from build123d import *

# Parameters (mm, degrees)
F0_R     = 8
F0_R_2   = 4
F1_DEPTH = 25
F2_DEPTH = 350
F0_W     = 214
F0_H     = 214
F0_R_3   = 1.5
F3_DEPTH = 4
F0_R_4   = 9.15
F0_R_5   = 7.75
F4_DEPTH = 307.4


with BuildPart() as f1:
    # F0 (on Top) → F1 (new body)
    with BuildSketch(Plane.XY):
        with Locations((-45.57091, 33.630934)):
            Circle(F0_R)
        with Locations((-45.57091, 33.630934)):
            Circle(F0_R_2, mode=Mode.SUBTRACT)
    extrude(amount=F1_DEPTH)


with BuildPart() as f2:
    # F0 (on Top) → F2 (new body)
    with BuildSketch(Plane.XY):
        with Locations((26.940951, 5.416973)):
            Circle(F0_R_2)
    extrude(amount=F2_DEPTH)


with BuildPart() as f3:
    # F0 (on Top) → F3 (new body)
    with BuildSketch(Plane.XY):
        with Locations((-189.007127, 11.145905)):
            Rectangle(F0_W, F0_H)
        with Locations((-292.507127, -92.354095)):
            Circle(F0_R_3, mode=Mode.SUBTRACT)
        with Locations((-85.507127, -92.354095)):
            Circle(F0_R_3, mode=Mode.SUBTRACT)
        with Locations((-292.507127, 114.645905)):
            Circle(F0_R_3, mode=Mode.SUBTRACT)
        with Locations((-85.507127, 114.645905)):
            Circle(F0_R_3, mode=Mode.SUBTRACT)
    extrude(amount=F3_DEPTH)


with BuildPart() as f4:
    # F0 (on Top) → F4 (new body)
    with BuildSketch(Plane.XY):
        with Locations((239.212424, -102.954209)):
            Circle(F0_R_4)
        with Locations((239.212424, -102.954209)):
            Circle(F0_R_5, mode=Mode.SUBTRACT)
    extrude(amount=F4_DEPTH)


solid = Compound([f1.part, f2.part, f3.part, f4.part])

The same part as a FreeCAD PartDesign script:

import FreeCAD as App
import Part
import Sketcher
from FreeCAD import Vector
Q = App.Units.Quantity

doc = App.newDocument("Part")
body = doc.addObject("PartDesign::Body", "Body")

sketch1 = doc.addObject("Sketcher::SketchObject", "Sketch")
body.addObject(sketch1)
sketch1.AttachmentSupport = (doc.XY_Plane, [""])
sketch1.MapMode = "FlatFace"
sketch1.addGeometry([
    Part.Circle(Vector(-45.6, 33.6, 0), Vector(0, 0, 1), 8),
    Part.Circle(Vector(-45.6, 33.6, 0), Vector(0, 0, 1), 4),
], False)
sketch1.addConstraint([
    Sketcher.Constraint("Coincident", 1, 3, 0, 3),
    Sketcher.Constraint("Diameter", 0, Q("16 mm")),
    Sketcher.Constraint("Diameter", 1, Q("8 mm")),
    Sketcher.Constraint("DistanceX", 0, 3, -1, 1, Q("45.57091 mm")),
    Sketcher.Constraint("DistanceY", -1, 1, 0, 3, Q("33.630934 mm")),
])
pad1 = doc.addObject("PartDesign::Pad", "Pad")
body.addObject(pad1)
pad1.Profile = sketch1
pad1.Length = 25
body2 = doc.addObject("PartDesign::Body", "Body001")

sketch2 = doc.addObject("Sketcher::SketchObject", "Sketch001")
body2.addObject(sketch2)
sketch2.AttachmentSupport = (doc.getObject("XY_Plane001"), [""])
sketch2.MapMode = "FlatFace"
sketch2.addGeometry(Part.Circle(Vector(26.9, 5.4, 0), Vector(0, 0, 1), 4), False)
sketch2.addConstraint([
    Sketcher.Constraint("Diameter", 0, Q("8 mm")),
    Sketcher.Constraint("DistanceX", -1, 1, 0, 3, Q("26.940951 mm")),
    Sketcher.Constraint("DistanceY", -1, 1, 0, 3, Q("5.416973 mm")),
])
pad2 = doc.addObject("PartDesign::Pad", "Pad001")
body2.addObject(pad2)
pad2.Profile = sketch2
pad2.Length = 350
body3 = doc.addObject("PartDesign::Body", "Body002")

sketch3 = doc.addObject("Sketcher::SketchObject", "Sketch002")
body3.addObject(sketch3)
sketch3.AttachmentSupport = (doc.getObject("XY_Plane002"), [""])
sketch3.MapMode = "FlatFace"
sketch3.addGeometry([
    Part.LineSegment(Vector(-296, 118.1, 0), Vector(-296, -95.9, 0)),
    Part.LineSegment(Vector(-296, -95.9, 0), Vector(-82, -95.9, 0)),
    Part.LineSegment(Vector(-82, -95.9, 0), Vector(-82, 118.1, 0)),
    Part.LineSegment(Vector(-82, 118.1, 0), Vector(-296, 118.1, 0)),
    Part.Circle(Vector(-292.5, -92.4, 0), Vector(0, 0, 1), 1.5),
    Part.Circle(Vector(-85.5, -92.4, 0), Vector(0, 0, 1), 1.5),
    Part.Circle(Vector(-292.5, 114.6, 0), Vector(0, 0, 1), 1.5),
    Part.Circle(Vector(-85.5, 114.6, 0), Vector(0, 0, 1), 1.5),
], False)
sketch3.addConstraint([
    Sketcher.Constraint("Coincident", 0, 2, 1, 1),
    Sketcher.Constraint("Coincident", 1, 2, 2, 1),
    Sketcher.Constraint("Coincident", 2, 2, 3, 1),
    Sketcher.Constraint("Coincident", 3, 2, 0, 1),
    Sketcher.Constraint("Vertical", 0),
    Sketcher.Constraint("Horizontal", 1),
    Sketcher.Constraint("Vertical", 2),
    Sketcher.Constraint("Horizontal", 3),
    Sketcher.Constraint("Equal", 4, 5),
    Sketcher.Constraint("Equal", 5, 6),
    Sketcher.Constraint("Equal", 6, 7),
    Sketcher.Constraint("Horizontal", 4, 3, 5, 3),
    Sketcher.Constraint("Horizontal", 6, 3, 7, 3),
    Sketcher.Constraint("Vertical", 4, 3, 6, 3),
    Sketcher.Constraint("Vertical", 5, 3, 7, 3),
    Sketcher.Constraint("Equal", 3, 0),
    Sketcher.Constraint("Diameter", 4, Q("3 mm")),
    Sketcher.Constraint("DistanceX", 1, 1, 1, 2, Q("214 mm")),
    Sketcher.Constraint("DistanceX", 4, 3, 5, 3, Q("207 mm")),
    Sketcher.Constraint("DistanceY", 4, 3, 6, 3, Q("207 mm")),
    Sketcher.Constraint("DistanceX", 0, 2, 4, 3, Q("3.5 mm")),
    Sketcher.Constraint("DistanceY", 0, 2, 4, 3, Q("3.5 mm")),
    Sketcher.Constraint("DistanceX", 4, 3, -1, 1, Q("292.507127 mm")),
    Sketcher.Constraint("DistanceY", 4, 3, -1, 1, Q("92.354095 mm")),
])
pad3 = doc.addObject("PartDesign::Pad", "Pad002")
body3.addObject(pad3)
pad3.Profile = sketch3
pad3.Length = 4
body4 = doc.addObject("PartDesign::Body", "Body003")

sketch4 = doc.addObject("Sketcher::SketchObject", "Sketch003")
body4.addObject(sketch4)
sketch4.AttachmentSupport = (doc.getObject("XY_Plane003"), [""])
sketch4.MapMode = "FlatFace"
sketch4.addGeometry([
    Part.Circle(Vector(239, -103, 0), Vector(0, 0, 1), 9),
    Part.Circle(Vector(239, -103, 0), Vector(0, 0, 1), 8),
], False)
sketch4.addConstraint([
    Sketcher.Constraint("Coincident", 1, 3, 0, 3),
    Sketcher.Constraint("Diameter", 0, Q("18.3 mm")),
    Sketcher.Constraint("Diameter", 1, Q("15.5 mm")),
    Sketcher.Constraint("DistanceY", 0, 3, -1, 1, Q("102.954209 mm")),
    Sketcher.Constraint("DistanceX", -1, 1, 0, 3, Q("239.212424 mm")),
])
pad4 = doc.addObject("PartDesign::Pad", "Pad003")
body4.addObject(pad4)
pad4.Profile = sketch4
pad4.Length = 307.4

doc.recompute()
